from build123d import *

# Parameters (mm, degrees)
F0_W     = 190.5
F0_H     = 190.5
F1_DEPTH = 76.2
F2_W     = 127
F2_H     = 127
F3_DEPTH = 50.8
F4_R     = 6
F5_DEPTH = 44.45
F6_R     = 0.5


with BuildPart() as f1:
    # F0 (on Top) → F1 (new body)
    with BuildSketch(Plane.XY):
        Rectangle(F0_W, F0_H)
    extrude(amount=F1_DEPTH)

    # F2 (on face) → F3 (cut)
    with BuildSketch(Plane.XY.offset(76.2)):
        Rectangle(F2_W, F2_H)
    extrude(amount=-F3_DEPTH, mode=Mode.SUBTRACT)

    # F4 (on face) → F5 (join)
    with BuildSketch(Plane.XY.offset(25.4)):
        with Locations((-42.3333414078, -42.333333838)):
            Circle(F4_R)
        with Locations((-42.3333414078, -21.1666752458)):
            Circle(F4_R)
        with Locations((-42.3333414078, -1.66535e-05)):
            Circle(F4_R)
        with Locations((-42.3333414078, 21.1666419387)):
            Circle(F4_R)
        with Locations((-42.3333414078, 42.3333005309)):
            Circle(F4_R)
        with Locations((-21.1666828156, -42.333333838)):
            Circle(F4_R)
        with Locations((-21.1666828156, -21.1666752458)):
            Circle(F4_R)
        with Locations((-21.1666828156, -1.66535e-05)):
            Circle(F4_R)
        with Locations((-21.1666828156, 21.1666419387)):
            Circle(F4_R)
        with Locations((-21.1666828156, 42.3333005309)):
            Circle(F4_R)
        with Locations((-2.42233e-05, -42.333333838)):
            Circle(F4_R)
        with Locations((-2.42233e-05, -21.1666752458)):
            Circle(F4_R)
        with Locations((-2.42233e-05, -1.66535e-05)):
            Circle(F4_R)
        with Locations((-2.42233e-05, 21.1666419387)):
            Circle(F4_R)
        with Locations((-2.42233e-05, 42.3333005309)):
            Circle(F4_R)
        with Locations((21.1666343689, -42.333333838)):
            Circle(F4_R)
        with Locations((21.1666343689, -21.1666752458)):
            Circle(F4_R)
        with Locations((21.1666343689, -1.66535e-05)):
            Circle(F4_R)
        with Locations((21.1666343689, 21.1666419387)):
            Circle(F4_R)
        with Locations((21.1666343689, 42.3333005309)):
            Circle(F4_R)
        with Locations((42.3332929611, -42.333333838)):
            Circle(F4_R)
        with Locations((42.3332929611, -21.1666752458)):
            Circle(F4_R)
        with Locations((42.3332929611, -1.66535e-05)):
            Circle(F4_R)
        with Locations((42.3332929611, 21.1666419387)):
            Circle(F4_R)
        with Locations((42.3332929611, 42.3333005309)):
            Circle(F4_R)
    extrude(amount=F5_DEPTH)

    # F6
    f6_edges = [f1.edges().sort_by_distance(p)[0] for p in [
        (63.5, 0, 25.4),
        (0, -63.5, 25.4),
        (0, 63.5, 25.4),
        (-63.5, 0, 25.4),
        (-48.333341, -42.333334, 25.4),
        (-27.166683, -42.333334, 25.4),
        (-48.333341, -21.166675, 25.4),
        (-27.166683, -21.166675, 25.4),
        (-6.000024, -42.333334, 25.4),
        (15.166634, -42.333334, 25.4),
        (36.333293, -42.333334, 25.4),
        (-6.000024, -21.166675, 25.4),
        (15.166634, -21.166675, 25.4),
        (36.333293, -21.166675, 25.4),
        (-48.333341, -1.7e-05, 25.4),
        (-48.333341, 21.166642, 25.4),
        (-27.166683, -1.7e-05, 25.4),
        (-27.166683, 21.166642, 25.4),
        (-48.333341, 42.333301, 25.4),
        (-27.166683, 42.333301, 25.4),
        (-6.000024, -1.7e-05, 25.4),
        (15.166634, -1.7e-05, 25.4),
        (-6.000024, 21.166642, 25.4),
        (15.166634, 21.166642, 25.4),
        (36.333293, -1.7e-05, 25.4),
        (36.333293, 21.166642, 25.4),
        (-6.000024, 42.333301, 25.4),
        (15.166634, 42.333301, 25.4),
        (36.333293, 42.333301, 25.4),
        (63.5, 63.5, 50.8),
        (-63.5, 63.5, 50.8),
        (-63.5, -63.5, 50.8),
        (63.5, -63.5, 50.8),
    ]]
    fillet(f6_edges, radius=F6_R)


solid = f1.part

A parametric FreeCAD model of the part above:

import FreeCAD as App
import Part
import Sketcher
from FreeCAD import Vector
Q = App.Units.Quantity


def edges_at(feature, points):
    """Names of the edges that pass closest to the given points."""
    edges = feature.Shape.Edges
    near = lambda p: min(range(len(edges)), key=lambda i: edges[i].distToShape(Part.Vertex(*p))[0])
    return sorted({f"Edge{near(p) + 1}" for p in points})


def add_polygon(sketch, points):
    """Adds a closed chain of lines whose ends are joined by coincident constraints."""
    first, n = sketch.GeometryCount, len(points)
    for a, b in zip(points, points[1:] + points[:1]):
        sketch.addGeometry(Part.LineSegment(App.Vector(*a, 0), App.Vector(*b, 0)), False)
    for i in range(n):
        sketch.addConstraint(Sketcher.Constraint("Coincident", first + i, 2, first + (i + 1) % n, 1))

doc = App.newDocument("Part")
body = doc.addObject("PartDesign::Body", "Body")

# Sketch on XY plane
sketch1 = body.newObject("Sketcher::SketchObject", "Sketch")
sketch1.AttachmentSupport = (doc.getObject("XY_Plane"), [""])
sketch1.MapMode = "FlatFace"
add_polygon(sketch1, [(-95.25, 95.25), (-95.25, -95.25), (95.25, -95.25), (95.25, 95.25)])  # lines 0-3
sketch1.addConstraint([
    Sketcher.Constraint("Vertical", 0),
    Sketcher.Constraint("Horizontal", 1),
    Sketcher.Constraint("Vertical", 2),
    Sketcher.Constraint("Horizontal", 3),
    Sketcher.Constraint("Symmetric", 0, 2, 2, 2, -1, 1),
    Sketcher.Constraint("Equal", 3, 0),
    Sketcher.Constraint("DistanceX", 1, 1, 1, 2, Q("7.5 in")),
])
pad1 = body.newObject("PartDesign::Pad", "Pad")
pad1.Profile = sketch1
pad1.Length = Q("3 in")

# Sketch on XY plane
sketch2 = body.newObject("Sketcher::SketchObject", "Sketch001")
sketch2.AttachmentSupport = (doc.getObject("XY_Plane"), [""])
sketch2.MapMode = "FlatFace"
sketch2.AttachmentOffset = App.Placement(Vector(0, 0, 3 * 25.4), App.Rotation())
add_polygon(sketch2, [(-63.5, 63.5), (-63.5, -63.5), (63.5, -63.5), (63.5, 63.5)])  # lines 0-3
sketch2.addConstraint([
    Sketcher.Constraint("Vertical", 0),
    Sketcher.Constraint("Horizontal", 1),
    Sketcher.Constraint("Vertical", 2),
    Sketcher.Constraint("Horizontal", 3),
    Sketcher.Constraint("Symmetric", 0, 2, 2, 2, -1, 1),
    Sketcher.Constraint("Equal", 3, 0),
    Sketcher.Constraint("DistanceX", 1, 1, 1, 2, Q("5 in")),
])
pocket1 = body.newObject("PartDesign::Pocket", "Pocket")
pocket1.Profile = sketch2
pocket1.Length = Q("2 in")

# Sketch on XY plane
sketch3 = body.newObject("Sketcher::SketchObject", "Sketch002")
sketch3.AttachmentSupport = (doc.getObject("XY_Plane"), [""])
sketch3.MapMode = "FlatFace"
sketch3.AttachmentOffset = App.Placement(Vector(0, 0, 1 * 25.4), App.Rotation())
sketch3.addGeometry([
    Part.Circle(Vector(-42.333341, -42.333334, 0), Vector(0, 0, 1), 6),  # 0
    Part.Circle(Vector(-42.333341, -21.166675, 0), Vector(0, 0, 1), 6),  # 1
    Part.Circle(Vector(-42.333341, -0.000017, 0), Vector(0, 0, 1), 6),  # 2
    Part.Circle(Vector(-42.333341, 21.166642, 0), Vector(0, 0, 1), 6),  # 3
    Part.Circle(Vector(-42.333341, 42.333301, 0), Vector(0, 0, 1), 6),  # 4
    Part.Circle(Vector(-21.166683, -42.333334, 0), Vector(0, 0, 1), 6),  # 5
    Part.Circle(Vector(-21.166683, -21.166675, 0), Vector(0, 0, 1), 6),  # 6
    Part.Circle(Vector(-21.166683, -0.000017, 0), Vector(0, 0, 1), 6),  # 7
    Part.Circle(Vector(-21.166683, 21.166642, 0), Vector(0, 0, 1), 6),  # 8
    Part.Circle(Vector(-21.166683, 42.333301, 0), Vector(0, 0, 1), 6),  # 9
    Part.Circle(Vector(-0.000024, -42.333334, 0), Vector(0, 0, 1), 6),  # 10
    Part.Circle(Vector(-0.000024, -21.166675, 0), Vector(0, 0, 1), 6),  # 11
    Part.Circle(Vector(-0.000024, -0.000017, 0), Vector(0, 0, 1), 6),  # 12
    Part.Circle(Vector(-0.000024, 21.166642, 0), Vector(0, 0, 1), 6),  # 13
    Part.Circle(Vector(-0.000024, 42.333301, 0), Vector(0, 0, 1), 6),  # 14
    Part.Circle(Vector(21.166634, -42.333334, 0), Vector(0, 0, 1), 6),  # 15
    Part.Circle(Vector(21.166634, -21.166675, 0), Vector(0, 0, 1), 6),  # 16
    Part.Circle(Vector(21.166634, -0.000017, 0), Vector(0, 0, 1), 6),  # 17
    Part.Circle(Vector(21.166634, 21.166642, 0), Vector(0, 0, 1), 6),  # 18
    Part.Circle(Vector(21.166634, 42.333301, 0), Vector(0, 0, 1), 6),  # 19
    Part.Circle(Vector(42.333293, -42.333334, 0), Vector(0, 0, 1), 6),  # 20
    Part.Circle(Vector(42.333293, -21.166675, 0), Vector(0, 0, 1), 6),  # 21
    Part.Circle(Vector(42.333293, -0.000017, 0), Vector(0, 0, 1), 6),  # 22
    Part.Circle(Vector(42.333293, 21.166642, 0), Vector(0, 0, 1), 6),  # 23
    Part.Circle(Vector(42.333293, 42.333301, 0), Vector(0, 0, 1), 6),  # 24
], False)
sketch3.addConstraint([
    Sketcher.Constraint("Equal", 0, 1),
    Sketcher.Constraint("Equal", 1, 2),
    Sketcher.Constraint("Equal", 2, 3),
    Sketcher.Constraint("Equal", 3, 4),
    Sketcher.Constraint("Equal", 4, 5),
    Sketcher.Constraint("Equal", 5, 6),
    Sketcher.Constraint("Equal", 6, 7),
    Sketcher.Constraint("Equal", 7, 8),
    Sketcher.Constraint("Equal", 8, 9),
    Sketcher.Constraint("Equal", 9, 10),
    Sketcher.Constraint("Equal", 10, 11),
    Sketcher.Constraint("Equal", 11, 12),
    Sketcher.Constraint("Equal", 12, 13),
    Sketcher.Constraint("Equal", 13, 14),
    Sketcher.Constraint("Equal", 14, 15),
    Sketcher.Constraint("Equal", 15, 16),
    Sketcher.Constraint("Equal", 16, 17),
    Sketcher.Constraint("Equal", 17, 18),
    Sketcher.Constraint("Equal", 18, 19),
    Sketcher.Constraint("Equal", 19, 20),
    Sketcher.Constraint("Equal", 20, 21),
    Sketcher.Constraint("Equal", 21, 22),
    Sketcher.Constraint("Equal", 22, 23),
    Sketcher.Constraint("Equal", 23, 24),
    Sketcher.Constraint("Horizontal", 0, 3, 5, 3),
    Sketcher.Constraint("Horizontal", 1, 3, 6, 3),
    Sketcher.Constraint("Horizontal", 2, 3, 7, 3),
    Sketcher.Constraint("Horizontal", 3, 3, 8, 3),
    Sketcher.Constraint("Horizontal", 4, 3, 9, 3),
    Sketcher.Constraint("Horizontal", 5, 3, 10, 3),
    Sketcher.Constraint("Horizontal", 6, 3, 11, 3),
    Sketcher.Constraint("Horizontal", 7, 3, 12, 3),
    Sketcher.Constraint("Horizontal", 8, 3, 13, 3),
    Sketcher.Constraint("Horizontal", 9, 3, 14, 3),
    Sketcher.Constraint("Horizontal", 10, 3, 15, 3),
    Sketcher.Constraint("Horizontal", 11, 3, 16, 3),
    Sketcher.Constraint("Horizontal", 12, 3, 17, 3),
    Sketcher.Constraint("Horizontal", 13, 3, 18, 3),
    Sketcher.Constraint("Horizontal", 14, 3, 19, 3),
    Sketcher.Constraint("Horizontal", 15, 3, 20, 3),
    Sketcher.Constraint("Horizontal", 16, 3, 21, 3),
    Sketcher.Constraint("Horizontal", 17, 3, 22, 3),
    Sketcher.Constraint("Horizontal", 18, 3, 23, 3),
    Sketcher.Constraint("Horizontal", 19, 3, 24, 3),
    Sketcher.Constraint("Vertical", 0, 3, 1, 3),
    Sketcher.Constraint("Vertical", 1, 3, 2, 3),
    Sketcher.Constraint("Vertical", 2, 3, 3, 3),
    Sketcher.Constraint("Vertical", 3, 3, 4, 3),
    Sketcher.Constraint("Vertical", 5, 3, 6, 3),
    Sketcher.Constraint("Vertical", 6, 3, 7, 3),
    Sketcher.Constraint("Vertical", 7, 3, 8, 3),
    Sketcher.Constraint("Vertical", 8, 3, 9, 3),
    Sketcher.Constraint("Vertical", 10, 3, 11, 3),
    Sketcher.Constraint("Vertical", 11, 3, 12, 3),
    Sketcher.Constraint("Vertical", 12, 3, 13, 3),
    Sketcher.Constraint("Vertical", 13, 3, 14, 3),
    Sketcher.Constraint("Vertical", 15, 3, 16, 3),
    Sketcher.Constraint("Vertical", 16, 3, 17, 3),
    Sketcher.Constraint("Vertical", 17, 3, 18, 3),
    Sketcher.Constraint("Vertical", 18, 3, 19, 3),
    Sketcher.Constraint("Vertical", 20, 3, 21, 3),
    Sketcher.Constraint("Vertical", 21, 3, 22, 3),
    Sketcher.Constraint("Vertical", 22, 3, 23, 3),
    Sketcher.Constraint("Vertical", 23, 3, 24, 3),
    Sketcher.Constraint("Diameter", 0, Q("12 mm")),
    Sketcher.Constraint("DistanceY", -1, 1, 4, 3, Q("42.333301 mm")),
    Sketcher.Constraint("DistanceX", 0, 3, -1, 1, Q("42.333341 mm")),
    Sketcher.Constraint("DistanceY", -1, 1, 3, 3, Q("21.166642 mm")),
    Sketcher.Constraint("DistanceY", 0, 3, 1, 3, Q("21.166659 mm")),
    Sketcher.Constraint("DistanceY", 1, 3, 2, 3, Q("21.166659 mm")),
    Sketcher.Constraint("DistanceY", 2, 3, 3, 3, Q("21.166659 mm")),
    Sketcher.Constraint("DistanceX", 0, 3, 5, 3, Q("21.166659 mm")),
    Sketcher.Constraint("DistanceX", 5, 3, 10, 3, Q("21.166659 mm")),
    Sketcher.Constraint("DistanceX", 10, 3, 15, 3, Q("21.166659 mm")),
    Sketcher.Constraint("DistanceX", 15, 3, 20, 3, Q("21.166659 mm")),
])
pad2 = body.newObject("PartDesign::Pad", "Pad001")
pad2.Profile = sketch3
pad2.Length = Q("1.75 in")
doc.recompute()

fillet = body.newObject("PartDesign::Fillet", "Fillet")
fillet.Base = (pad2, edges_at(pad2, [
    (63.5, 0, 25.4),
    (0, -63.5, 25.4),
    (0, 63.5, 25.4),
    (-63.5, 0, 25.4),
    (-48.333, -42.333, 25.4),
    (-27.167, -42.333, 25.4),
    (-48.333, -21.167, 25.4),
    (-27.167, -21.167, 25.4),
    (-6, -42.333, 25.4),
    (15.167, -42.333, 25.4),
    (36.333, -42.333, 25.4),
    (-6, -21.167, 25.4),
    (15.167, -21.167, 25.4),
    (36.333, -21.167, 25.4),
    (-48.333, 0, 25.4),
    (-48.333, 21.167, 25.4),
    (-27.167, 0, 25.4),
    (-27.167, 21.167, 25.4),
    (-48.333, 42.333, 25.4),
    (-27.167, 42.333, 25.4),
    (-6, 0, 25.4),
    (15.167, 0, 25.4),
    (-6, 21.167, 25.4),
    (15.167, 21.167, 25.4),
    (36.333, 0, 25.4),
    (36.333, 21.167, 25.4),
    (-6, 42.333, 25.4),
    (15.167, 42.333, 25.4),
    (36.333, 42.333, 25.4),
    (63.5, 63.5, 50.8),
    (-63.5, 63.5, 50.8),
    (-63.5, -63.5, 50.8),
    (63.5, -63.5, 50.8),
]))
fillet.Radius = 0.5

doc.recompute()
